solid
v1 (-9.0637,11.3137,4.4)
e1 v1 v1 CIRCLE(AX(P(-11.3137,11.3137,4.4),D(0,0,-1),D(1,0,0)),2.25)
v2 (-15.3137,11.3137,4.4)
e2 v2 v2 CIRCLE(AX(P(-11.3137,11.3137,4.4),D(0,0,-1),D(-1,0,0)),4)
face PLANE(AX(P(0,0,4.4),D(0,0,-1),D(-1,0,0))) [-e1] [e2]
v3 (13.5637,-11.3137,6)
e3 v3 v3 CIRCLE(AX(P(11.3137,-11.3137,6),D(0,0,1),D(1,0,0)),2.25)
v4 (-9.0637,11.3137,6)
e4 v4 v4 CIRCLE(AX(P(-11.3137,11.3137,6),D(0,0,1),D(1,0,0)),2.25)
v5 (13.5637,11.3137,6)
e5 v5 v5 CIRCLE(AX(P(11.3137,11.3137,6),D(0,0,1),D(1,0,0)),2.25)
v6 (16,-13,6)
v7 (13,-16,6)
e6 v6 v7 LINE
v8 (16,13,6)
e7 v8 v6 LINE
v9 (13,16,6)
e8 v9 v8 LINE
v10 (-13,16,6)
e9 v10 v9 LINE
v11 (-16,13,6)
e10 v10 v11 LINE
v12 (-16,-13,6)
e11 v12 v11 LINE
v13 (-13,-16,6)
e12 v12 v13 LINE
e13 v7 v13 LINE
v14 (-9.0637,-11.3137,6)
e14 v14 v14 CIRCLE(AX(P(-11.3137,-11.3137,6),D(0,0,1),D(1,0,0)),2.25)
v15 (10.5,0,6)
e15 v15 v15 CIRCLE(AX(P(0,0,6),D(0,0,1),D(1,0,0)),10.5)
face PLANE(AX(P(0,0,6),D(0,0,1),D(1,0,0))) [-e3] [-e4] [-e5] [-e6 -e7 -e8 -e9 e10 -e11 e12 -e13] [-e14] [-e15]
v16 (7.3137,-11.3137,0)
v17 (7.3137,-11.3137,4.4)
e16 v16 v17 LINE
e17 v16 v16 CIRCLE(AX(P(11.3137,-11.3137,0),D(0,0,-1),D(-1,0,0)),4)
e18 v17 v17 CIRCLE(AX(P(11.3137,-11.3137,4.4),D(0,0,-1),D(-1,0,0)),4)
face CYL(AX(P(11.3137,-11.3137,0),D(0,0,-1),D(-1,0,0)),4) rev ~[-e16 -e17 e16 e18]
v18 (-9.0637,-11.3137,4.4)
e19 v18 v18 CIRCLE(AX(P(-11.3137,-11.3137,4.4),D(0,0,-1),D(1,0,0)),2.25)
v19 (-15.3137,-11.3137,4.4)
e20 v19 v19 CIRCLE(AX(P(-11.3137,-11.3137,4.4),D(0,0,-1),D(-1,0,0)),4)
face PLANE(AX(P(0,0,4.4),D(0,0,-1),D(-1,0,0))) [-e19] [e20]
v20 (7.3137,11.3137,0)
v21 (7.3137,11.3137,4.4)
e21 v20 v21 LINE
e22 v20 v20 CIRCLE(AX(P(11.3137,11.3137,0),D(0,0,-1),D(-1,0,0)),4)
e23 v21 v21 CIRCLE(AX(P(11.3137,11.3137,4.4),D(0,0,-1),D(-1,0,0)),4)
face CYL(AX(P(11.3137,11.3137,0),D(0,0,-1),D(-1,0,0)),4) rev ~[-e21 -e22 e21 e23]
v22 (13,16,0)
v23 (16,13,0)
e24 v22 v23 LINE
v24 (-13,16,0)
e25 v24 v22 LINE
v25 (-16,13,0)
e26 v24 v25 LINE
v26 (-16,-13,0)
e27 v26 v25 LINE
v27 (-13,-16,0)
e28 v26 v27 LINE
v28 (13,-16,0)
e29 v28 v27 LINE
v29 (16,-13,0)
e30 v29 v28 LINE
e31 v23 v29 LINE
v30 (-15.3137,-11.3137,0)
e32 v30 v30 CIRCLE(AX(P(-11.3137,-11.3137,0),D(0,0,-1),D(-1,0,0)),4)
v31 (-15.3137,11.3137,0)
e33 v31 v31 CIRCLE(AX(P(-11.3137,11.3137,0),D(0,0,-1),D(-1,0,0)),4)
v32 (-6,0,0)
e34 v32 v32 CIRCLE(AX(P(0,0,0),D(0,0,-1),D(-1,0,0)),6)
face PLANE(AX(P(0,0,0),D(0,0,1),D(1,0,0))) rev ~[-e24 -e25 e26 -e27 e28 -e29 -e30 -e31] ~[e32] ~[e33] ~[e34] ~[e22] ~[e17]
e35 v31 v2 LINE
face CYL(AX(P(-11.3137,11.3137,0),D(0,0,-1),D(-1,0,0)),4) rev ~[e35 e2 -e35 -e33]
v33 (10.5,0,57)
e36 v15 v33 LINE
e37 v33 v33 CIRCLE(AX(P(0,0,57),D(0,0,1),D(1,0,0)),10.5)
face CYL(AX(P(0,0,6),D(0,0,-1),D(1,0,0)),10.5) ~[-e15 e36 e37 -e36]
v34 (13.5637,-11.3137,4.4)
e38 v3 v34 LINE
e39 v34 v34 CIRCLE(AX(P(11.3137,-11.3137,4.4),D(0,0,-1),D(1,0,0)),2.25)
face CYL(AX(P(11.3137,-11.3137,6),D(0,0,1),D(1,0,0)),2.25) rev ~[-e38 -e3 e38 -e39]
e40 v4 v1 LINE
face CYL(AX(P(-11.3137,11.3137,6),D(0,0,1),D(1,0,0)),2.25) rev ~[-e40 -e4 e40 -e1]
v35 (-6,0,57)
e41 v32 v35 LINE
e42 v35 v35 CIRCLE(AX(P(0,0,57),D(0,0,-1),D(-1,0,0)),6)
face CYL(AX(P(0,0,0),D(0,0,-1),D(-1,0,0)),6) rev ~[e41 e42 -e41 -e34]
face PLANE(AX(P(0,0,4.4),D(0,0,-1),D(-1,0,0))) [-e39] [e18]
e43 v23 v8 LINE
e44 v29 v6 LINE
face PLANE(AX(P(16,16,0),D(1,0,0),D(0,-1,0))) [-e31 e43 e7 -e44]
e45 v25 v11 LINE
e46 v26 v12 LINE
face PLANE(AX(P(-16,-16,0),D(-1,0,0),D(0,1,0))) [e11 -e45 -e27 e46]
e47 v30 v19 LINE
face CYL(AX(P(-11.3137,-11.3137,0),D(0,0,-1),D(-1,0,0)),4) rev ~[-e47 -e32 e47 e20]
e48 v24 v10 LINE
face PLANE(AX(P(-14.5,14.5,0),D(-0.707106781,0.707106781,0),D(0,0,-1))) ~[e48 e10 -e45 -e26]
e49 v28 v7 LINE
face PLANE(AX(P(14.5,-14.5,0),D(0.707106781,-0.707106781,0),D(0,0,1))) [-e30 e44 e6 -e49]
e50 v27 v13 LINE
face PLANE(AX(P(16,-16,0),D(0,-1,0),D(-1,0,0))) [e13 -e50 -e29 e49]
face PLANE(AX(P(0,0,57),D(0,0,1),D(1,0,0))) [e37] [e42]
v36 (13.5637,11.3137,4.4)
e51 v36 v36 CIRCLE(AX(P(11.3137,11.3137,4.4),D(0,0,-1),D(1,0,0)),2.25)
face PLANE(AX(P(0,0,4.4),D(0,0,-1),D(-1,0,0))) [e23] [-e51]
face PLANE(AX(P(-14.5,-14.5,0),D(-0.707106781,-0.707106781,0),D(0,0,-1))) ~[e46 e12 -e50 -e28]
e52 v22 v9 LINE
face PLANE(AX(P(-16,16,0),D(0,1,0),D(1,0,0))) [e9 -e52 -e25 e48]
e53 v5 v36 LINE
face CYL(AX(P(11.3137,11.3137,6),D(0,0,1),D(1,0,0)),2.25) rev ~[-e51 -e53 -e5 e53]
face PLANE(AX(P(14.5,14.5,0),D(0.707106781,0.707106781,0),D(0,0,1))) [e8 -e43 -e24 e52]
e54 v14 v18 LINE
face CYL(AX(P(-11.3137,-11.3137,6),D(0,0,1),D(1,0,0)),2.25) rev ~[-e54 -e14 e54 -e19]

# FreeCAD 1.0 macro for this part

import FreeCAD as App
import Part
import Sketcher


def edges_at(feature, points):
    """Names of the edges that pass closest to the given points."""
    edges = feature.Shape.Edges
    near = lambda p: min(range(len(edges)), key=lambda i: edges[i].distToShape(Part.Vertex(*p))[0])
    return sorted({f"Edge{near(p) + 1}" for p in points})

doc = App.newDocument("Part")
body = doc.addObject("PartDesign::Body", "Body")

# Sketch on XY plane
sketch1 = body.newObject("Sketcher::SketchObject", "Sketch")
sketch1.AttachmentSupport = (doc.getObject("XY_Plane"), [""])
sketch1.MapMode = "FlatFace"
sketch1.addGeometry(Part.LineSegment(App.Vector(16, 16, 0), App.Vector(-16, 16, 0)), False)
sketch1.addGeometry(Part.LineSegment(App.Vector(-16, 16, 0), App.Vector(-16, -16, 0)), False)
sketch1.addGeometry(Part.LineSegment(App.Vector(-16, -16, 0), App.Vector(16, -16, 0)), False)
sketch1.addGeometry(Part.LineSegment(App.Vector(16, -16, 0), App.Vector(16, 16, 0)), False)
sketch1.addConstraint(Sketcher.Constraint("Coincident", 0, 2, 1, 1))
sketch1.addConstraint(Sketcher.Constraint("Coincident", 1, 2, 2, 1))
sketch1.addConstraint(Sketcher.Constraint("Coincident", 2, 2, 3, 1))
sketch1.addConstraint(Sketcher.Constraint("Coincident", 3, 2, 0, 1))
sketch1.addConstraint(Sketcher.Constraint("Horizontal", 0))
sketch1.addConstraint(Sketcher.Constraint("Vertical", 1))
sketch1.addConstraint(Sketcher.Constraint("Horizontal", 2))
sketch1.addConstraint(Sketcher.Constraint("Vertical", 3))
sketch1.addConstraint(Sketcher.Constraint("Symmetric", 0, 2, 2, 2, -1, 1))
sketch1.addConstraint(Sketcher.Constraint("Equal", 2, 1))
sketch1.addConstraint(Sketcher.Constraint("DistanceX", 0, 2, 0, 1, 32.0))
pad1 = body.newObject("PartDesign::Pad", "Pad")
pad1.Profile = sketch1
pad1.Length = 6

# Sketch on XY plane
sketch2 = body.newObject("Sketcher::SketchObject", "Sketch001")
sketch2.AttachmentSupport = (doc.getObject("XY_Plane"), [""])
sketch2.MapMode = "FlatFace"
sketch2.AttachmentOffset = App.Placement(App.Vector(0, 0, 6), App.Rotation())
sketch2.addGeometry(Part.Circle(App.Vector(0, 0, 0), App.Vector(0, 0, 1), 10), False)
sketch2.addConstraint(Sketcher.Constraint("Coincident", 0, 3, -1, 1))
sketch2.addConstraint(Sketcher.Constraint("Diameter", 0, 21.0))
pad2 = body.newObject("PartDesign::Pad", "Pad001")
pad2.Profile = sketch2
pad2.Length = 51

# Sketch on XY plane
sketch3 = body.newObject("Sketcher::SketchObject", "Sketch002")
sketch3.AttachmentSupport = (doc.getObject("XY_Plane"), [""])
sketch3.MapMode = "FlatFace"
sketch3.addGeometry(Part.Circle(App.Vector(0, 0, 0), App.Vector(0, 0, 1), 6), False)
sketch3.addConstraint(Sketcher.Constraint("Coincident", 0, 3, -1, 1))
sketch3.addConstraint(Sketcher.Constraint("Diameter", 0, 12.0))
pocket1 = body.newObject("PartDesign::Pocket", "Pocket")
pocket1.Profile = sketch3
pocket1.Length = 57
pocket1.Reversed = True

# Sketch on XY plane
sketch4 = body.newObject("Sketcher::SketchObject", "Sketch003")
sketch4.AttachmentSupport = (doc.getObject("XY_Plane"), [""])
sketch4.MapMode = "FlatFace"
sketch4.AttachmentOffset = App.Placement(App.Vector(0, 0, 6), App.Rotation())
sketch4.addGeometry(Part.Circle(App.Vector(11.3, 11.3, 0), App.Vector(0, 0, 1), 2.2), False)
sketch4.addGeometry(Part.Circle(App.Vector(-11.3, 11.3, 0), App.Vector(0, 0, 1), 2.2), False)
sketch4.addGeometry(Part.Circle(App.Vector(-11.3, -11.3, 0), App.Vector(0, 0, 1), 2.2), False)
sketch4.addGeometry(Part.Circle(App.Vector(11.3, -11.3, 0), App.Vector(0, 0, 1), 2.2), False)
sketch4.addConstraint(Sketcher.Constraint("Equal", 0, 1))
sketch4.addConstraint(Sketcher.Constraint("Equal", 1, 2))
sketch4.addConstraint(Sketcher.Constraint("Equal", 2, 3))
sketch4.addConstraint(Sketcher.Constraint("Symmetric", 0, 3, 2, 3, -1, 1))
sketch4.addConstraint(Sketcher.Constraint("Symmetric", 1, 3, 3, 3, -1, 1))
sketch4.addConstraint(Sketcher.Constraint("Symmetric", 0, 3, 1, 3, -2))
sketch4.addConstraint(Sketcher.Constraint("Diameter", 0, 4.5))
sketch4.addConstraint(Sketcher.Constraint("DistanceX", -1, 1, 0, 3, 11.3137))
sketch4.addConstraint(Sketcher.Constraint("DistanceY", -1, 1, 0, 3, 11.3137))
pocket2 = body.newObject("PartDesign::Pocket", "Pocket001")
pocket2.Profile = sketch4
pocket2.Length = 6

# Sketch on XY plane
sketch5 = body.newObject("Sketcher::SketchObject", "Sketch004")
sketch5.AttachmentSupport = (doc.getObject("XY_Plane"), [""])
sketch5.MapMode = "FlatFace"
sketch5.addGeometry(Part.Circle(App.Vector(11.3, 11.3, 0), App.Vector(0, 0, 1), 4), False)
sketch5.addGeometry(Part.Circle(App.Vector(11.3, 11.3, 0), App.Vector(0, 0, 1), 2.2), False)
sketch5.addGeometry(Part.Circle(App.Vector(-11.3, 11.3, 0), App.Vector(0, 0, 1), 4), False)
sketch5.addGeometry(Part.Circle(App.Vector(-11.3, 11.3, 0), App.Vector(0, 0, 1), 2.2), False)
sketch5.addGeometry(Part.Circle(App.Vector(-11.3, -11.3, 0), App.Vector(0, 0, 1), 4), False)
sketch5.addGeometry(Part.Circle(App.Vector(-11.3, -11.3, 0), App.Vector(0, 0, 1), 2.2), False)
sketch5.addGeometry(Part.Circle(App.Vector(11.3, -11.3, 0), App.Vector(0, 0, 1), 4), False)
sketch5.addGeometry(Part.Circle(App.Vector(11.3, -11.3, 0), App.Vector(0, 0, 1), 2.2), False)
sketch5.addConstraint(Sketcher.Constraint("Coincident", 1, 3, 0, 3))
sketch5.addConstraint(Sketcher.Constraint("Coincident", 3, 3, 2, 3))
sketch5.addConstraint(Sketcher.Constraint("Coincident", 5, 3, 4, 3))
sketch5.addConstraint(Sketcher.Constraint("Coincident", 7, 3, 6, 3))
sketch5.addConstraint(Sketcher.Constraint("Equal", 0, 2))
sketch5.addConstraint(Sketcher.Constraint("Equal", 1, 3))
sketch5.addConstraint(Sketcher.Constraint("Equal", 2, 4))
sketch5.addConstraint(Sketcher.Constraint("Equal", 3, 5))
sketch5.addConstraint(Sketcher.Constraint("Equal", 4, 6))
sketch5.addConstraint(Sketcher.Constraint("Equal", 5, 7))
sketch5.addConstraint(Sketcher.Constraint("Symmetric", 0, 3, 4, 3, -1, 1))
sketch5.addConstraint(Sketcher.Constraint("Symmetric", 2, 3, 6, 3, -1, 1))
sketch5.addConstraint(Sketcher.Constraint("Symmetric", 0, 3, 2, 3, -2))
sketch5.addConstraint(Sketcher.Constraint("Diameter", 0, 8.0))
sketch5.addConstraint(Sketcher.Constraint("Diameter", 1, 4.5))
sketch5.addConstraint(Sketcher.Constraint("DistanceX", -1, 1, 0, 3, 11.3137))
sketch5.addConstraint(Sketcher.Constraint("DistanceY", -1, 1, 0, 3, 11.3137))
pocket3 = body.newObject("PartDesign::Pocket", "Pocket002")
pocket3.Profile = sketch5
pocket3.Length = 4.4
pocket3.Reversed = True
doc.recompute()

chamfer = body.newObject("PartDesign::Chamfer", "Chamfer")
chamfer.Base = (pocket3, edges_at(pocket3, [
    (-16, -16, 3),
    (16, -16, 3),
    (16, 16, 3),
    (-16, 16, 3),
]))
chamfer.Size = 3

doc.recompute()
